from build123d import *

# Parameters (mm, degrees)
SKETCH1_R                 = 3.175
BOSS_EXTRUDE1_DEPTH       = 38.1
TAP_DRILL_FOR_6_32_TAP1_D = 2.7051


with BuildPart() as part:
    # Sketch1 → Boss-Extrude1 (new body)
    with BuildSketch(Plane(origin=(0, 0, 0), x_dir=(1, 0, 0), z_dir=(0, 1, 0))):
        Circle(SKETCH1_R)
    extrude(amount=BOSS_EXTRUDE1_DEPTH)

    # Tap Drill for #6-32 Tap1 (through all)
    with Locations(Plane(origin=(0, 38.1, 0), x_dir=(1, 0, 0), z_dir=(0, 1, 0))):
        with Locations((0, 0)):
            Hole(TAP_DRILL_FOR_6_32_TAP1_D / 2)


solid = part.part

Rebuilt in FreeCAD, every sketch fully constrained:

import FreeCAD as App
import Part
import Sketcher
from FreeCAD import Vector
Q = App.Units.Quantity

doc = App.newDocument("Part")
body = doc.addObject("PartDesign::Body", "Body")

# Sketch on XZ plane
sketch1 = doc.addObject("Sketcher::SketchObject", "Sketch")
body.addObject(sketch1)
sketch1.AttachmentSupport = (doc.XZ_Plane, [""])
sketch1.MapMode = "FlatFace"
sketch1.addGeometry(Part.Circle(Vector(0, 0, 0), Vector(0, 0, 1), 3.2), False)
sketch1.addConstraint(Sketcher.Constraint("Coincident", 0, 3, -1, 1))
sketch1.addConstraint(Sketcher.Constraint("Diameter", 0, Q("0.25 in")))
pad1 = doc.addObject("PartDesign::Pad", "Pad")
body.addObject(pad1)
pad1.Profile = sketch1
pad1.Length = Q("1.5 in")
pad1.Reversed = True

# Sketch on XZ plane
sketch2 = doc.addObject("Sketcher::SketchObject", "Sketch001")
body.addObject(sketch2)
sketch2.AttachmentSupport = (doc.XZ_Plane, [""])
sketch2.MapMode = "FlatFace"
sketch2.AttachmentOffset = App.Placement(Vector(0, 0, -1.5 * 25.4), App.Rotation())
sketch2.addGeometry(Part.Circle(Vector(0, 0, 0), Vector(0, 0, 1), 1.4), False)
sketch2.addConstraint(Sketcher.Constraint("Coincident", 0, 3, -1, 1))
sketch2.addConstraint(Sketcher.Constraint("Diameter", 0, Q("0.1065 in")))
doc.recompute()
hole = doc.addObject("PartDesign::Hole", "Hole")
body.addObject(hole)
hole.Profile = sketch2
hole.ThreadType = "None"
hole.Diameter = Q("0.1065 in")
hole.DepthType = "ThroughAll"
hole.Reversed = True

doc.recompute()
